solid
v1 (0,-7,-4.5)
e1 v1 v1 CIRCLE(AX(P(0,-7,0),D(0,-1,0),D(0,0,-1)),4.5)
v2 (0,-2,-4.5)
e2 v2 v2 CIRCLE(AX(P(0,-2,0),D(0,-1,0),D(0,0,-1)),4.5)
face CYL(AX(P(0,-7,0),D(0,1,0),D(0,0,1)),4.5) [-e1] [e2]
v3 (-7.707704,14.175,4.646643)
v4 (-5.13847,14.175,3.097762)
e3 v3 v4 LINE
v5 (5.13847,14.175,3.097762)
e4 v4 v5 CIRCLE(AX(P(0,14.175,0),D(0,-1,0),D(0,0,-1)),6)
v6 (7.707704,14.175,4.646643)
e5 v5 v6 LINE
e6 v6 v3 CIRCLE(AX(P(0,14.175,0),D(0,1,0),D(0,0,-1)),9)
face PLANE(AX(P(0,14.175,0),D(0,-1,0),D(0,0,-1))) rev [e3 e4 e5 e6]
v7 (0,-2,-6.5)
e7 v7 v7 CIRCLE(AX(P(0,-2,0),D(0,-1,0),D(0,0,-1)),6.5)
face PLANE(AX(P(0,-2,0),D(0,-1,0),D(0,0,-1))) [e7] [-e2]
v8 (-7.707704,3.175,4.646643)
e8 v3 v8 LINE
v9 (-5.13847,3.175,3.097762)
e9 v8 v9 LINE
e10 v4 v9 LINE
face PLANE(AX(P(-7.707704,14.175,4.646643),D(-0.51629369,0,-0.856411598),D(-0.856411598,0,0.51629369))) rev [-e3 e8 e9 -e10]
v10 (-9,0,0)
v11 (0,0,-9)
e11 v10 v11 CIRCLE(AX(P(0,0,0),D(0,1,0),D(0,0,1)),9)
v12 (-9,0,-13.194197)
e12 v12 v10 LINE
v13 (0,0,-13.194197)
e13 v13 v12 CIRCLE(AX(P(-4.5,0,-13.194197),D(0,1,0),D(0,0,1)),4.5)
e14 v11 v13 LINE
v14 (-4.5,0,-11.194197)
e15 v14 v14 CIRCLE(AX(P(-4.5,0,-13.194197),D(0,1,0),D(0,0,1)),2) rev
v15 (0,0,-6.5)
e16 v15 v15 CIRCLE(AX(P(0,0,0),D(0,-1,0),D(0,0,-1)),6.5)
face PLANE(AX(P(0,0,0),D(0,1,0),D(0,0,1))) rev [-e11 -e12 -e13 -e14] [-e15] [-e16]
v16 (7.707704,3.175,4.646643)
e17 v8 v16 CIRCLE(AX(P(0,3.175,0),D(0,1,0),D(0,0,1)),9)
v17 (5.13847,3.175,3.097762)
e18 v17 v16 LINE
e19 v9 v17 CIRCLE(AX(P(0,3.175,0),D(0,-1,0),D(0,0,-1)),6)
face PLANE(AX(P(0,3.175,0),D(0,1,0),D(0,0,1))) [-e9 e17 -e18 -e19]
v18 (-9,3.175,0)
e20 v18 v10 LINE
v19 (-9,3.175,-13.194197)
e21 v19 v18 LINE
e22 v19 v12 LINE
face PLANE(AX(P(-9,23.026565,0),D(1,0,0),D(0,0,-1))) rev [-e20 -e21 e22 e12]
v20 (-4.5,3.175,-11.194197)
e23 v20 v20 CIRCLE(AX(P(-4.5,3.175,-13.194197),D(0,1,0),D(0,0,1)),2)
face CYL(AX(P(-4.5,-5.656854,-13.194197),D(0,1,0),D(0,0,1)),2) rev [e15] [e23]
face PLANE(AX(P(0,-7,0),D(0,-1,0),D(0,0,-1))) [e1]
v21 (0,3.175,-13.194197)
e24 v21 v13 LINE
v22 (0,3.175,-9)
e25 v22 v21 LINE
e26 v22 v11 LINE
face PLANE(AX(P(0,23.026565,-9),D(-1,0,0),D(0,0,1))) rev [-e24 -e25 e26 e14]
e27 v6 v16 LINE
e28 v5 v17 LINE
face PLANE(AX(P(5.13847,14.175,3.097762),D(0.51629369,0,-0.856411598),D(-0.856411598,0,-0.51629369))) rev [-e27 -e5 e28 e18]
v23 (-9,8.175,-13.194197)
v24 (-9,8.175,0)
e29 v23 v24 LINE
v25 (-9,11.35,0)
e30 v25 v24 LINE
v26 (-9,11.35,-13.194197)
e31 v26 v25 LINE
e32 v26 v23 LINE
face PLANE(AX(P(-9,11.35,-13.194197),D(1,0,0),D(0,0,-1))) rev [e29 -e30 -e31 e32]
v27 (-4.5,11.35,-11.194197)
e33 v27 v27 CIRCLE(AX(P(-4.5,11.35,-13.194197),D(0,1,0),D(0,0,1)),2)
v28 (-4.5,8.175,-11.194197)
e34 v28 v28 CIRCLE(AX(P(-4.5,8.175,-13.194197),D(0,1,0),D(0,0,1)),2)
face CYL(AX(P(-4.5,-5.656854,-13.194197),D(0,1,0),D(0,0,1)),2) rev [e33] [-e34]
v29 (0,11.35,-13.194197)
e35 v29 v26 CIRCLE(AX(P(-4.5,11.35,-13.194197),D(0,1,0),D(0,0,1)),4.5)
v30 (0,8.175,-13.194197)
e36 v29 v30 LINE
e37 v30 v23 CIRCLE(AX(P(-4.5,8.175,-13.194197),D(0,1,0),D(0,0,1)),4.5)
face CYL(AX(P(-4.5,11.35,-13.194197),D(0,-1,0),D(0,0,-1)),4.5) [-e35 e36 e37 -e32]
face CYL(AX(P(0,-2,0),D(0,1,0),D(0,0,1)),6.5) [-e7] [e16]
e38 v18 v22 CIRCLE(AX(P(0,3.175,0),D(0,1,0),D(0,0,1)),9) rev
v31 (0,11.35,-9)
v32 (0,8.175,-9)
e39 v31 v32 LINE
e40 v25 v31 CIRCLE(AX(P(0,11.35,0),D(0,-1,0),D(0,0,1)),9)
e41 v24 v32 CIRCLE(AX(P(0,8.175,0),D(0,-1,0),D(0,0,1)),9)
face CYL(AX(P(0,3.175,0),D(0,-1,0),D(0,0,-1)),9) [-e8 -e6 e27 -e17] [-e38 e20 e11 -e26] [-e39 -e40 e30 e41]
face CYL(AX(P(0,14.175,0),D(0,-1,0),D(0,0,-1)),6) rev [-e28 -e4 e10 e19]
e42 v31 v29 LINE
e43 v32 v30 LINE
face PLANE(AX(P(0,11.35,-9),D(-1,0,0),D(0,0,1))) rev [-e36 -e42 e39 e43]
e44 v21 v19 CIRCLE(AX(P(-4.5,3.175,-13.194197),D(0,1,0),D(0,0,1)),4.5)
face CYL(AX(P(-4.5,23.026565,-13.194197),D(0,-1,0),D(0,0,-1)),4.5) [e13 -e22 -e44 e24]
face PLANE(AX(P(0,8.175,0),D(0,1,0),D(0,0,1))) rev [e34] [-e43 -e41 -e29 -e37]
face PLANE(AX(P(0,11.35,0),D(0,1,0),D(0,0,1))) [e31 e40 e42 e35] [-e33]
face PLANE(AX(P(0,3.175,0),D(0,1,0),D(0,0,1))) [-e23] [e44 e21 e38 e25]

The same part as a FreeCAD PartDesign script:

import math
import FreeCAD as App
import Part
import Sketcher
Q = App.Units.Quantity

doc = App.newDocument("Part")
body = doc.addObject("PartDesign::Body", "Body")

# Sketch on XZ plane
sketch1 = body.newObject("Sketcher::SketchObject", "Sketch")
sketch1.AttachmentSupport = (doc.getObject("XZ_Plane"), [""])
sketch1.MapMode = "FlatFace"
sketch1.addGeometry(Part.Circle(App.Vector(0, 0, 0), App.Vector(0, 0, 1), 9), False)
sketch1.addConstraint([
    Sketcher.Constraint("Coincident", 0, 3, -1, 1),
    Sketcher.Constraint("Diameter", 0, Q("18 mm")),
])
pad1 = body.newObject("PartDesign::Pad", "Pad")
pad1.Profile = sketch1
pad1.Length = 3.175
pad1.Reversed = True

# Sketch on XZ plane
sketch2 = body.newObject("Sketcher::SketchObject", "Sketch001")
sketch2.AttachmentSupport = (doc.getObject("XZ_Plane"), [""])
sketch2.MapMode = "FlatFace"
sketch2.AttachmentOffset = App.Placement(App.Vector(0, 0, -3.175), App.Rotation())
sketch2.addGeometry([
    Part.LineSegment(App.Vector(-7.7, 4.6, 0), App.Vector(-5.1, 3.1, 0)),
    Part.ArcOfCircle(Part.Circle(App.Vector(0, 0, 0), App.Vector(0, 0, 1), 6), math.radians(149), math.radians(391)),
    Part.LineSegment(App.Vector(5.1, 3.1, 0), App.Vector(7.7, 4.6, 0)),
    Part.ArcOfCircle(Part.Circle(App.Vector(0, 0, 0), App.Vector(0, 0, 1), 9), math.radians(149), math.radians(391)),
], False)
sketch2.addConstraint([
    Sketcher.Constraint("Coincident", 0, 2, 1, 1),
    Sketcher.Constraint("Coincident", 1, 2, 2, 1),
    Sketcher.Constraint("Coincident", 2, 2, 3, 2),
    Sketcher.Constraint("Coincident", 3, 1, 0, 1),
    Sketcher.Constraint("Coincident", 1, 3, -1, 1),
    Sketcher.Constraint("Coincident", 3, 3, -1, 1),
    Sketcher.Constraint("Horizontal", 0, 2, 1, 2),
    Sketcher.Constraint("Horizontal", 2, 2, 3, 1),
    Sketcher.Constraint("Radius", 1, Q("6 mm")),
    Sketcher.Constraint("Radius", 3, Q("9 mm")),
    Sketcher.Constraint("DistanceX", 0, 2, -1, 1, Q("5.13847 mm")),
    Sketcher.Constraint("DistanceY", 1, 2, 2, 2, Q("1.548881 mm")),
])
pad2 = body.newObject("PartDesign::Pad", "Pad001")
pad2.Profile = sketch2
pad2.Length = 11
pad2.Reversed = True

# Sketch on XZ plane
sketch3 = body.newObject("Sketcher::SketchObject", "Sketch002")
sketch3.AttachmentSupport = (doc.getObject("XZ_Plane"), [""])
sketch3.MapMode = "FlatFace"
sketch3.addGeometry(Part.Circle(App.Vector(0, 0, 0), App.Vector(0, 0, 1), 6), False)
sketch3.addConstraint([
    Sketcher.Constraint("Coincident", 0, 3, -1, 1),
    Sketcher.Constraint("Diameter", 0, Q("13 mm")),
])
pad3 = body.newObject("PartDesign::Pad", "Pad002")
pad3.Profile = sketch3
pad3.Length = 2

# Sketch on XZ plane
sketch4 = body.newObject("Sketcher::SketchObject", "Sketch003")
sketch4.AttachmentSupport = (doc.getObject("XZ_Plane"), [""])
sketch4.MapMode = "FlatFace"
sketch4.AttachmentOffset = App.Placement(App.Vector(0, 0, 2), App.Rotation())
sketch4.addGeometry(Part.Circle(App.Vector(0, 0, 0), App.Vector(0, 0, 1), 4.5), False)
sketch4.addConstraint([
    Sketcher.Constraint("Coincident", 0, 3, -1, 1),
    Sketcher.Constraint("Diameter", 0, Q("9 mm")),
])
pad4 = body.newObject("PartDesign::Pad", "Pad003")
pad4.Profile = sketch4
pad4.Length = 5

# Sketch on XZ plane
sketch5 = body.newObject("Sketcher::SketchObject", "Sketch004")
sketch5.AttachmentSupport = (doc.getObject("XZ_Plane"), [""])
sketch5.MapMode = "FlatFace"
sketch5.addGeometry([
    Part.LineSegment(App.Vector(-9, -13.2, 0), App.Vector(-9, 0, 0)),
    Part.ArcOfCircle(Part.Circle(App.Vector(0, 0, 0), App.Vector(0, 0, 1), 9), math.radians(180), math.radians(270)),
    Part.LineSegment(App.Vector(0, -9, 0), App.Vector(0, -13.2, 0)),
    Part.ArcOfCircle(Part.Circle(App.Vector(-4.5, -13.2, 0), App.Vector(0, 0, 1), 4.5), math.radians(180), math.radians(360)),
], False)
sketch5.addConstraint([
    Sketcher.Constraint("Tangent", 0, 2, 1, 1),
    Sketcher.Constraint("Coincident", 1, 2, 2, 1),
    Sketcher.Constraint("Tangent", 2, 2, 3, 2),
    Sketcher.Constraint("Tangent", 3, 1, 0, 1),
    Sketcher.Constraint("Vertical", 0),
    Sketcher.Constraint("Vertical", 2),
    Sketcher.Constraint("Coincident", 1, 3, -1, 1),
    Sketcher.Constraint("PointOnObject", 1, 2, -2),
    Sketcher.Constraint("Radius", 1, Q("9 mm")),
    Sketcher.Constraint("DistanceY", 0, 1, 0, 2, Q("13.194197 mm")),
])
pad5 = body.newObject("PartDesign::Pad", "Pad004")
pad5.Profile = sketch5
pad5.Length = 3.175
pad5.Reversed = True

# Sketch on XZ plane
sketch6 = body.newObject("Sketcher::SketchObject", "Sketch005")
sketch6.AttachmentSupport = (doc.getObject("XZ_Plane"), [""])
sketch6.MapMode = "FlatFace"
sketch6.AttachmentOffset = App.Placement(App.Vector(0, 0, -8.175), App.Rotation())
sketch6.addGeometry([
    Part.LineSegment(App.Vector(0, -9, 0), App.Vector(0, -13.2, 0)),
    Part.ArcOfCircle(Part.Circle(App.Vector(-4.5, -13.2, 0), App.Vector(0, 0, 1), 4.5), math.radians(180), math.radians(360)),
    Part.LineSegment(App.Vector(-9, -13.2, 0), App.Vector(-9, 0, 0)),
    Part.ArcOfCircle(Part.Circle(App.Vector(0, 0, 0), App.Vector(0, 0, 1), 9), math.radians(180), math.radians(270)),
], False)
sketch6.addConstraint([
    Sketcher.Constraint("Tangent", 0, 2, 1, 2),
    Sketcher.Constraint("Tangent", 1, 1, 2, 1),
    Sketcher.Constraint("Tangent", 2, 2, 3, 1),
    Sketcher.Constraint("Coincident", 3, 2, 0, 1),
    Sketcher.Constraint("Vertical", 0),
    Sketcher.Constraint("Vertical", 2),
    Sketcher.Constraint("Coincident", 3, 3, -1, 1),
    Sketcher.Constraint("PointOnObject", 0, 2, -2),
    Sketcher.Constraint("Radius", 3, Q("9 mm")),
    Sketcher.Constraint("DistanceY", 0, 2, 0, 1, Q("4.194197 mm")),
])
pad6 = body.newObject("PartDesign::Pad", "Pad005")
pad6.Profile = sketch6
pad6.Length = 3.175
pad6.Reversed = True

# Sketch on XZ plane
sketch7 = body.newObject("Sketcher::SketchObject", "Sketch006")
sketch7.AttachmentSupport = (doc.getObject("XZ_Plane"), [""])
sketch7.MapMode = "FlatFace"
sketch7.AttachmentOffset = App.Placement(App.Vector(0, 0, -11.35), App.Rotation())
sketch7.addGeometry(Part.Circle(App.Vector(-4.5, -13.2, 0), App.Vector(0, 0, 1), 2), False)
sketch7.addConstraint([
    Sketcher.Constraint("Diameter", 0, Q("4 mm")),
    Sketcher.Constraint("DistanceX", 0, 3, -1, 1, Q("4.5 mm")),
    Sketcher.Constraint("DistanceY", 0, 3, -1, 1, Q("13.194197 mm")),
])
pocket1 = body.newObject("PartDesign::Pocket", "Pocket")
pocket1.Profile = sketch7
pocket1.Length = 11.35
pocket1.Reversed = True

doc.recompute()
